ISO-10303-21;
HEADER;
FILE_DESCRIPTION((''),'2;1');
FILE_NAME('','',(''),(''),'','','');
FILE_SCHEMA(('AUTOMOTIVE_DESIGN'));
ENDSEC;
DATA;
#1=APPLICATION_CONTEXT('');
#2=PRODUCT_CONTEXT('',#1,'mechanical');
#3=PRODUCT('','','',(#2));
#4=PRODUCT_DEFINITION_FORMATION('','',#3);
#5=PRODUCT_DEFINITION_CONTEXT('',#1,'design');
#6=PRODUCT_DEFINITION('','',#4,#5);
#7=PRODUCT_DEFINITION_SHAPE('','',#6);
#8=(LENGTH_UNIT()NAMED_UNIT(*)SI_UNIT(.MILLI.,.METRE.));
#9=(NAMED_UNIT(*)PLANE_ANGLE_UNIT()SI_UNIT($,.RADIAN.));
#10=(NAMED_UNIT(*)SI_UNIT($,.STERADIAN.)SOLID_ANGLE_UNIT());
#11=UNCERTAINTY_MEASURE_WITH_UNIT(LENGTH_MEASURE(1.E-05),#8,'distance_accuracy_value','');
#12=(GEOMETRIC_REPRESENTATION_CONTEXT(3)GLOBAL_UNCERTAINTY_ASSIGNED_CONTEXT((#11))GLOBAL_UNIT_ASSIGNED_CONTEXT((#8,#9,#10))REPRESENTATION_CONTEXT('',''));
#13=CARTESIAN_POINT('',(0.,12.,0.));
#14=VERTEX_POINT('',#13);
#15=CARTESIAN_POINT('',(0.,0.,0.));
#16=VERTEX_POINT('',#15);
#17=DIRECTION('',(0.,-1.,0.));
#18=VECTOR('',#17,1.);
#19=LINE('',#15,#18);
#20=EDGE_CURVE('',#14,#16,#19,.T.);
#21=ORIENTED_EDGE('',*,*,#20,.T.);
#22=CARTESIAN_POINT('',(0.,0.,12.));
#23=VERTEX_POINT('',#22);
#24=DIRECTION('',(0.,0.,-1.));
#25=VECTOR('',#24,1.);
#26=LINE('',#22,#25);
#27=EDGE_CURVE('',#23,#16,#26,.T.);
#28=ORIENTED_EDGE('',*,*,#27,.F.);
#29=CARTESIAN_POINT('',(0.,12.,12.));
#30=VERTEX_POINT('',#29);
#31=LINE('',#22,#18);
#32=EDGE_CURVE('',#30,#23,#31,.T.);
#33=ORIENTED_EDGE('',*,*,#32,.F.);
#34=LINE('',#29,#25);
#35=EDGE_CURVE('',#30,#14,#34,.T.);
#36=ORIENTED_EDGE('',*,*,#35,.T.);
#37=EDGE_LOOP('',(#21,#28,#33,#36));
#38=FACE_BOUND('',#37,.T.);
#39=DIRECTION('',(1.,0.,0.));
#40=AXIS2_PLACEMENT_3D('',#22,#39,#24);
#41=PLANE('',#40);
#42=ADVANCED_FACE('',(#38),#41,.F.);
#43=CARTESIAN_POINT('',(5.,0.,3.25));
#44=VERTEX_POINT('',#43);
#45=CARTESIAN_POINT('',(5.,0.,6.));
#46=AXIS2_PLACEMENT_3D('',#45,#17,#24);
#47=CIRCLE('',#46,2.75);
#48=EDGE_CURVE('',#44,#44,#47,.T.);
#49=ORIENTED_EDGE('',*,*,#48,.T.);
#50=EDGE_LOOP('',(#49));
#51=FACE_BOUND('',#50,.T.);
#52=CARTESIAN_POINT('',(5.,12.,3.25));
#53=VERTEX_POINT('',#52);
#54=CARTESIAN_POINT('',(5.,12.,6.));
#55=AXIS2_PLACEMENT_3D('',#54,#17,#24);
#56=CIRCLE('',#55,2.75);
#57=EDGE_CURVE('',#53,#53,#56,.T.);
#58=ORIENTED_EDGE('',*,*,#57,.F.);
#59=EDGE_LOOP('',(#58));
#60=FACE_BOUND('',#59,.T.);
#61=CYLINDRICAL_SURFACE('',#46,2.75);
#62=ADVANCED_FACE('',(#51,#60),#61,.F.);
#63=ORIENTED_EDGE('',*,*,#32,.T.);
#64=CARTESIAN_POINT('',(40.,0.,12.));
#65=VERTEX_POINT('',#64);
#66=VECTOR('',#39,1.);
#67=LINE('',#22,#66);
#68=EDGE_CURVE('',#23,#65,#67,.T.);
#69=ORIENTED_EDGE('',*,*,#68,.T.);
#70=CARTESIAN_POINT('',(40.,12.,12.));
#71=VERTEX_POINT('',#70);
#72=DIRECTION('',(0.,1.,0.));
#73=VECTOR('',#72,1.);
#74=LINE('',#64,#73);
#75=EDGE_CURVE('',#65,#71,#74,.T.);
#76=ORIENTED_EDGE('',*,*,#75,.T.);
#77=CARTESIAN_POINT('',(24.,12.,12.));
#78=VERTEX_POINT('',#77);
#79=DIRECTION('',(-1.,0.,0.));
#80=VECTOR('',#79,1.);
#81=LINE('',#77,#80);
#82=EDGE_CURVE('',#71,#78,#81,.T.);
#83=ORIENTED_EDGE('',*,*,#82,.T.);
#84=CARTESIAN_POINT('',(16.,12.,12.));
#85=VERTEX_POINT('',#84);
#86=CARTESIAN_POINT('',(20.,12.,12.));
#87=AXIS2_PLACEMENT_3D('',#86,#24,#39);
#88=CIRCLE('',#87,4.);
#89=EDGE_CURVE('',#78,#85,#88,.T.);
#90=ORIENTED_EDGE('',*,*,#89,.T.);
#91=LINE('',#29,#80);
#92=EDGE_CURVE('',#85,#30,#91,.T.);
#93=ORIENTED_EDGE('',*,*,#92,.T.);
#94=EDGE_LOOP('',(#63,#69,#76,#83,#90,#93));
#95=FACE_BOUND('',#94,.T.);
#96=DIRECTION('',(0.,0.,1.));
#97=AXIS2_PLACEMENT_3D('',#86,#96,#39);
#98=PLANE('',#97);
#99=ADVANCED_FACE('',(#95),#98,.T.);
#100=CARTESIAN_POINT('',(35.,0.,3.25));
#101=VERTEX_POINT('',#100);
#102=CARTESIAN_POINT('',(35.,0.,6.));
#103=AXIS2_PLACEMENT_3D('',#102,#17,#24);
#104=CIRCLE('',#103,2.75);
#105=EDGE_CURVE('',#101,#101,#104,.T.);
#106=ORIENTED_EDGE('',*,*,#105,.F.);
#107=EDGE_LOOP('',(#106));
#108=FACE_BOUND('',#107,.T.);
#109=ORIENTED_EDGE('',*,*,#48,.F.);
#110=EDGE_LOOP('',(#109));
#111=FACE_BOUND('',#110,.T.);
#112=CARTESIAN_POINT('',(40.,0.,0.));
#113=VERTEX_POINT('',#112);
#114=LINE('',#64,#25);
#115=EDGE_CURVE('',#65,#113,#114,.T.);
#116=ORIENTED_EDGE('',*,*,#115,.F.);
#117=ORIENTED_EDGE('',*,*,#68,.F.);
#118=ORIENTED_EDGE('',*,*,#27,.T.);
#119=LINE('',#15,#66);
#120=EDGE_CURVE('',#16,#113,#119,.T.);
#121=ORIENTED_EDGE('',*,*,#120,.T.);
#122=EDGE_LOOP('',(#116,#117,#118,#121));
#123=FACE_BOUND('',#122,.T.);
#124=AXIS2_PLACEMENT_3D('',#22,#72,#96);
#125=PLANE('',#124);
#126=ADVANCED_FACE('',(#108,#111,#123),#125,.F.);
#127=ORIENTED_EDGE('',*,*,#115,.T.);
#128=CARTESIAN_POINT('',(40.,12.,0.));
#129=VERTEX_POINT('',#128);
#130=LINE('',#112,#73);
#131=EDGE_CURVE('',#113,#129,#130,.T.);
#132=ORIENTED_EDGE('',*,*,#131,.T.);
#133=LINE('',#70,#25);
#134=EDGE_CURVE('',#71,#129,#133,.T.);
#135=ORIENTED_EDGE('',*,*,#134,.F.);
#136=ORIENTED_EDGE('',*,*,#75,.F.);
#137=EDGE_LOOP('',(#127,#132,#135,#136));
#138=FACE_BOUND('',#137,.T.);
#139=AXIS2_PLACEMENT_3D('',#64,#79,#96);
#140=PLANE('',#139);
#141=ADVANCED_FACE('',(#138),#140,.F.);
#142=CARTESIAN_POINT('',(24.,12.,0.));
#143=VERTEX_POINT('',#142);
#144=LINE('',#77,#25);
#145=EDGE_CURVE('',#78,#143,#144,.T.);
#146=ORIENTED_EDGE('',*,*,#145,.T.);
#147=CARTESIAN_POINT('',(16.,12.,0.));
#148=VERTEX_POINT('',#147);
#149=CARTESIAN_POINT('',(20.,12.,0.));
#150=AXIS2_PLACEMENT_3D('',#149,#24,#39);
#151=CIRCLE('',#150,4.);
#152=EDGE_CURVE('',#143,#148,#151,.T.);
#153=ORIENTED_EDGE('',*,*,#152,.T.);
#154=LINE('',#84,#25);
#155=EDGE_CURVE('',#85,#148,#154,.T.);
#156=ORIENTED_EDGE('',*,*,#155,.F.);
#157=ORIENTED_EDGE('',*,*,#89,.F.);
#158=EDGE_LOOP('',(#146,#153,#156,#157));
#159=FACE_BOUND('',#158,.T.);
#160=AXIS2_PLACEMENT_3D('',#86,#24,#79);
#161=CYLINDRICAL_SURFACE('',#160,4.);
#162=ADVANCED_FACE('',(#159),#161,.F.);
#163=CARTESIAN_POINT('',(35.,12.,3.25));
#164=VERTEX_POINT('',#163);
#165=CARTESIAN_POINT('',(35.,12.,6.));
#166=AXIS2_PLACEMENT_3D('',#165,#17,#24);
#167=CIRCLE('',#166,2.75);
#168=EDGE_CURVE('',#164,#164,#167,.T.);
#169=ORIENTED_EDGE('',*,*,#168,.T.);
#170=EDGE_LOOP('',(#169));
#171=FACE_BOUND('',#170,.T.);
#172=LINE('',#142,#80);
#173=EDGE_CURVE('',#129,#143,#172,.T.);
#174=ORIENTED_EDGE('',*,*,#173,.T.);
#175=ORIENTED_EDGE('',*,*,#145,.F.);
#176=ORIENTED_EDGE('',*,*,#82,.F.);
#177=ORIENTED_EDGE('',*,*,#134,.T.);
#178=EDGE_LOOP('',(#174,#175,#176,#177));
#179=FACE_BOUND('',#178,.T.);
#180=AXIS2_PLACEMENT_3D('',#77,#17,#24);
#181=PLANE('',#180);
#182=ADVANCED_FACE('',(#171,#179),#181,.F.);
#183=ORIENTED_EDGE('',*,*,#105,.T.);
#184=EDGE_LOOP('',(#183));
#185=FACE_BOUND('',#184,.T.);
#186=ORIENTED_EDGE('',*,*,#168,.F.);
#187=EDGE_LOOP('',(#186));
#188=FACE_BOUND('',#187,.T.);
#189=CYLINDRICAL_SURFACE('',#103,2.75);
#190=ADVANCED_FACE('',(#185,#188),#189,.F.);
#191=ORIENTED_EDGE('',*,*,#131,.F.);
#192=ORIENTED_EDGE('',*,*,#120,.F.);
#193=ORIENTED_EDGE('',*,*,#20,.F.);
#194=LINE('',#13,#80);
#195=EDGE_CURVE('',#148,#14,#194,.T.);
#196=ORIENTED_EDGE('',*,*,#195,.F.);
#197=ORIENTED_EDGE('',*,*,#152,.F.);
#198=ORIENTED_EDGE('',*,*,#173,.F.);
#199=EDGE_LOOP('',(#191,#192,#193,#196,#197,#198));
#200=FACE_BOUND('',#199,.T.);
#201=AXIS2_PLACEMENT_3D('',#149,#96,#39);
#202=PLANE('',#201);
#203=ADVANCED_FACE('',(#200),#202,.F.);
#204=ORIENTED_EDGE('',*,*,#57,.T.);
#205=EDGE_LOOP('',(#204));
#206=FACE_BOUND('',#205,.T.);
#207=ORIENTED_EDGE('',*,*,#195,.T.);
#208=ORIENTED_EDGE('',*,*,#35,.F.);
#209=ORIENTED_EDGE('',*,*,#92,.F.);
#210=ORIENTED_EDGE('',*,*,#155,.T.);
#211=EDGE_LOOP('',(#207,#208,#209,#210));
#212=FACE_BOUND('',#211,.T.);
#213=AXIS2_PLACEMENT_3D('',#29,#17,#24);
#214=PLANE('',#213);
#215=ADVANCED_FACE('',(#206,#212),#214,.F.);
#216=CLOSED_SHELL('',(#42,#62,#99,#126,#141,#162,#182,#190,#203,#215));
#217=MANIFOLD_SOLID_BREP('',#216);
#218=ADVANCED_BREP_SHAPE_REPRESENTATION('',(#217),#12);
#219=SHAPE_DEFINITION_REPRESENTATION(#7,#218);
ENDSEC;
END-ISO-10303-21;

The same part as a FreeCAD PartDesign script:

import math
import FreeCAD as App
import Part
import Sketcher

V = App.Vector

doc = App.newDocument("Part")
body = doc.addObject("PartDesign::Body", "Body")

# Sketch on XY plane
sketch1 = body.newObject("Sketcher::SketchObject", "Sketch")
sketch1.AttachmentSupport = (doc.getObject("XY_Plane"), [""])
sketch1.MapMode = "FlatFace"
sketch1.addGeometry([
    Part.LineSegment(V(40, 12, 0), V(24, 12, 0)),  # 0
    Part.ArcOfCircle(Part.Circle(V(20, 12, 0), V(0, 0, 1), 4), math.radians(180), math.radians(360)),  # 1
    Part.LineSegment(V(16, 12, 0), V(0, 12, 0)),  # 2
    Part.LineSegment(V(0, 12, 0), V(0, 0, 0)),  # 3
    Part.LineSegment(V(0, 0, 0), V(40, 0, 0)),  # 4
    Part.LineSegment(V(40, 0, 0), V(40, 12, 0)),  # 5
], False)
sketch1.addConstraint([
    Sketcher.Constraint("Coincident", 0, 2, 1, 2),
    Sketcher.Constraint("Coincident", 1, 1, 2, 1),
    Sketcher.Constraint("Coincident", 2, 2, 3, 1),
    Sketcher.Constraint("Coincident", 3, 2, 4, 1),
    Sketcher.Constraint("Coincident", 4, 2, 5, 1),
    Sketcher.Constraint("Coincident", 5, 2, 0, 1),
    Sketcher.Constraint("Horizontal", 0),
    Sketcher.Constraint("Horizontal", 2),
    Sketcher.Constraint("Vertical", 3),
    Sketcher.Constraint("Horizontal", 4),
    Sketcher.Constraint("Vertical", 5),
    Sketcher.Constraint("Coincident", 3, 2, -1, 1),
    Sketcher.Constraint("Horizontal", 1, 3, 0, 2),
    Sketcher.Constraint("Horizontal", 0, 2, 1, 1),
    Sketcher.Constraint("Equal", 0, 2),
    Sketcher.Constraint("Radius", 1, 4.0),
    Sketcher.Constraint("DistanceX", 0, 2, 0, 1, 16.0),
    Sketcher.Constraint("DistanceY", 3, 2, 3, 1, 12.0),
])
pad1 = body.newObject("PartDesign::Pad", "Pad")
pad1.Profile = sketch1
pad1.Length = 12

# Sketch on XZ plane
sketch2 = body.newObject("Sketcher::SketchObject", "Sketch001")
sketch2.AttachmentSupport = (doc.getObject("XZ_Plane"), [""])
sketch2.MapMode = "FlatFace"
sketch2.addGeometry([
    Part.Circle(V(5, 6, 0), V(0, 0, 1), 2.8),
    Part.Circle(V(35, 6, 0), V(0, 0, 1), 2.8),
], False)
sketch2.addConstraint([
    Sketcher.Constraint("Equal", 0, 1),
    Sketcher.Constraint("Horizontal", 0, 3, 1, 3),
    Sketcher.Constraint("Diameter", 0, 5.5),
    Sketcher.Constraint("DistanceX", -1, 1, 0, 3, 5.0),
    Sketcher.Constraint("DistanceY", -1, 1, 0, 3, 6.0),
    Sketcher.Constraint("DistanceX", -1, 1, 1, 3, 35.0),
])
doc.recompute()
hole = body.newObject("PartDesign::Hole", "Hole")
hole.Profile = sketch2
hole.ThreadType = "None"
hole.Diameter = 5.5
hole.DepthType = "ThroughAll"

doc.recompute()
